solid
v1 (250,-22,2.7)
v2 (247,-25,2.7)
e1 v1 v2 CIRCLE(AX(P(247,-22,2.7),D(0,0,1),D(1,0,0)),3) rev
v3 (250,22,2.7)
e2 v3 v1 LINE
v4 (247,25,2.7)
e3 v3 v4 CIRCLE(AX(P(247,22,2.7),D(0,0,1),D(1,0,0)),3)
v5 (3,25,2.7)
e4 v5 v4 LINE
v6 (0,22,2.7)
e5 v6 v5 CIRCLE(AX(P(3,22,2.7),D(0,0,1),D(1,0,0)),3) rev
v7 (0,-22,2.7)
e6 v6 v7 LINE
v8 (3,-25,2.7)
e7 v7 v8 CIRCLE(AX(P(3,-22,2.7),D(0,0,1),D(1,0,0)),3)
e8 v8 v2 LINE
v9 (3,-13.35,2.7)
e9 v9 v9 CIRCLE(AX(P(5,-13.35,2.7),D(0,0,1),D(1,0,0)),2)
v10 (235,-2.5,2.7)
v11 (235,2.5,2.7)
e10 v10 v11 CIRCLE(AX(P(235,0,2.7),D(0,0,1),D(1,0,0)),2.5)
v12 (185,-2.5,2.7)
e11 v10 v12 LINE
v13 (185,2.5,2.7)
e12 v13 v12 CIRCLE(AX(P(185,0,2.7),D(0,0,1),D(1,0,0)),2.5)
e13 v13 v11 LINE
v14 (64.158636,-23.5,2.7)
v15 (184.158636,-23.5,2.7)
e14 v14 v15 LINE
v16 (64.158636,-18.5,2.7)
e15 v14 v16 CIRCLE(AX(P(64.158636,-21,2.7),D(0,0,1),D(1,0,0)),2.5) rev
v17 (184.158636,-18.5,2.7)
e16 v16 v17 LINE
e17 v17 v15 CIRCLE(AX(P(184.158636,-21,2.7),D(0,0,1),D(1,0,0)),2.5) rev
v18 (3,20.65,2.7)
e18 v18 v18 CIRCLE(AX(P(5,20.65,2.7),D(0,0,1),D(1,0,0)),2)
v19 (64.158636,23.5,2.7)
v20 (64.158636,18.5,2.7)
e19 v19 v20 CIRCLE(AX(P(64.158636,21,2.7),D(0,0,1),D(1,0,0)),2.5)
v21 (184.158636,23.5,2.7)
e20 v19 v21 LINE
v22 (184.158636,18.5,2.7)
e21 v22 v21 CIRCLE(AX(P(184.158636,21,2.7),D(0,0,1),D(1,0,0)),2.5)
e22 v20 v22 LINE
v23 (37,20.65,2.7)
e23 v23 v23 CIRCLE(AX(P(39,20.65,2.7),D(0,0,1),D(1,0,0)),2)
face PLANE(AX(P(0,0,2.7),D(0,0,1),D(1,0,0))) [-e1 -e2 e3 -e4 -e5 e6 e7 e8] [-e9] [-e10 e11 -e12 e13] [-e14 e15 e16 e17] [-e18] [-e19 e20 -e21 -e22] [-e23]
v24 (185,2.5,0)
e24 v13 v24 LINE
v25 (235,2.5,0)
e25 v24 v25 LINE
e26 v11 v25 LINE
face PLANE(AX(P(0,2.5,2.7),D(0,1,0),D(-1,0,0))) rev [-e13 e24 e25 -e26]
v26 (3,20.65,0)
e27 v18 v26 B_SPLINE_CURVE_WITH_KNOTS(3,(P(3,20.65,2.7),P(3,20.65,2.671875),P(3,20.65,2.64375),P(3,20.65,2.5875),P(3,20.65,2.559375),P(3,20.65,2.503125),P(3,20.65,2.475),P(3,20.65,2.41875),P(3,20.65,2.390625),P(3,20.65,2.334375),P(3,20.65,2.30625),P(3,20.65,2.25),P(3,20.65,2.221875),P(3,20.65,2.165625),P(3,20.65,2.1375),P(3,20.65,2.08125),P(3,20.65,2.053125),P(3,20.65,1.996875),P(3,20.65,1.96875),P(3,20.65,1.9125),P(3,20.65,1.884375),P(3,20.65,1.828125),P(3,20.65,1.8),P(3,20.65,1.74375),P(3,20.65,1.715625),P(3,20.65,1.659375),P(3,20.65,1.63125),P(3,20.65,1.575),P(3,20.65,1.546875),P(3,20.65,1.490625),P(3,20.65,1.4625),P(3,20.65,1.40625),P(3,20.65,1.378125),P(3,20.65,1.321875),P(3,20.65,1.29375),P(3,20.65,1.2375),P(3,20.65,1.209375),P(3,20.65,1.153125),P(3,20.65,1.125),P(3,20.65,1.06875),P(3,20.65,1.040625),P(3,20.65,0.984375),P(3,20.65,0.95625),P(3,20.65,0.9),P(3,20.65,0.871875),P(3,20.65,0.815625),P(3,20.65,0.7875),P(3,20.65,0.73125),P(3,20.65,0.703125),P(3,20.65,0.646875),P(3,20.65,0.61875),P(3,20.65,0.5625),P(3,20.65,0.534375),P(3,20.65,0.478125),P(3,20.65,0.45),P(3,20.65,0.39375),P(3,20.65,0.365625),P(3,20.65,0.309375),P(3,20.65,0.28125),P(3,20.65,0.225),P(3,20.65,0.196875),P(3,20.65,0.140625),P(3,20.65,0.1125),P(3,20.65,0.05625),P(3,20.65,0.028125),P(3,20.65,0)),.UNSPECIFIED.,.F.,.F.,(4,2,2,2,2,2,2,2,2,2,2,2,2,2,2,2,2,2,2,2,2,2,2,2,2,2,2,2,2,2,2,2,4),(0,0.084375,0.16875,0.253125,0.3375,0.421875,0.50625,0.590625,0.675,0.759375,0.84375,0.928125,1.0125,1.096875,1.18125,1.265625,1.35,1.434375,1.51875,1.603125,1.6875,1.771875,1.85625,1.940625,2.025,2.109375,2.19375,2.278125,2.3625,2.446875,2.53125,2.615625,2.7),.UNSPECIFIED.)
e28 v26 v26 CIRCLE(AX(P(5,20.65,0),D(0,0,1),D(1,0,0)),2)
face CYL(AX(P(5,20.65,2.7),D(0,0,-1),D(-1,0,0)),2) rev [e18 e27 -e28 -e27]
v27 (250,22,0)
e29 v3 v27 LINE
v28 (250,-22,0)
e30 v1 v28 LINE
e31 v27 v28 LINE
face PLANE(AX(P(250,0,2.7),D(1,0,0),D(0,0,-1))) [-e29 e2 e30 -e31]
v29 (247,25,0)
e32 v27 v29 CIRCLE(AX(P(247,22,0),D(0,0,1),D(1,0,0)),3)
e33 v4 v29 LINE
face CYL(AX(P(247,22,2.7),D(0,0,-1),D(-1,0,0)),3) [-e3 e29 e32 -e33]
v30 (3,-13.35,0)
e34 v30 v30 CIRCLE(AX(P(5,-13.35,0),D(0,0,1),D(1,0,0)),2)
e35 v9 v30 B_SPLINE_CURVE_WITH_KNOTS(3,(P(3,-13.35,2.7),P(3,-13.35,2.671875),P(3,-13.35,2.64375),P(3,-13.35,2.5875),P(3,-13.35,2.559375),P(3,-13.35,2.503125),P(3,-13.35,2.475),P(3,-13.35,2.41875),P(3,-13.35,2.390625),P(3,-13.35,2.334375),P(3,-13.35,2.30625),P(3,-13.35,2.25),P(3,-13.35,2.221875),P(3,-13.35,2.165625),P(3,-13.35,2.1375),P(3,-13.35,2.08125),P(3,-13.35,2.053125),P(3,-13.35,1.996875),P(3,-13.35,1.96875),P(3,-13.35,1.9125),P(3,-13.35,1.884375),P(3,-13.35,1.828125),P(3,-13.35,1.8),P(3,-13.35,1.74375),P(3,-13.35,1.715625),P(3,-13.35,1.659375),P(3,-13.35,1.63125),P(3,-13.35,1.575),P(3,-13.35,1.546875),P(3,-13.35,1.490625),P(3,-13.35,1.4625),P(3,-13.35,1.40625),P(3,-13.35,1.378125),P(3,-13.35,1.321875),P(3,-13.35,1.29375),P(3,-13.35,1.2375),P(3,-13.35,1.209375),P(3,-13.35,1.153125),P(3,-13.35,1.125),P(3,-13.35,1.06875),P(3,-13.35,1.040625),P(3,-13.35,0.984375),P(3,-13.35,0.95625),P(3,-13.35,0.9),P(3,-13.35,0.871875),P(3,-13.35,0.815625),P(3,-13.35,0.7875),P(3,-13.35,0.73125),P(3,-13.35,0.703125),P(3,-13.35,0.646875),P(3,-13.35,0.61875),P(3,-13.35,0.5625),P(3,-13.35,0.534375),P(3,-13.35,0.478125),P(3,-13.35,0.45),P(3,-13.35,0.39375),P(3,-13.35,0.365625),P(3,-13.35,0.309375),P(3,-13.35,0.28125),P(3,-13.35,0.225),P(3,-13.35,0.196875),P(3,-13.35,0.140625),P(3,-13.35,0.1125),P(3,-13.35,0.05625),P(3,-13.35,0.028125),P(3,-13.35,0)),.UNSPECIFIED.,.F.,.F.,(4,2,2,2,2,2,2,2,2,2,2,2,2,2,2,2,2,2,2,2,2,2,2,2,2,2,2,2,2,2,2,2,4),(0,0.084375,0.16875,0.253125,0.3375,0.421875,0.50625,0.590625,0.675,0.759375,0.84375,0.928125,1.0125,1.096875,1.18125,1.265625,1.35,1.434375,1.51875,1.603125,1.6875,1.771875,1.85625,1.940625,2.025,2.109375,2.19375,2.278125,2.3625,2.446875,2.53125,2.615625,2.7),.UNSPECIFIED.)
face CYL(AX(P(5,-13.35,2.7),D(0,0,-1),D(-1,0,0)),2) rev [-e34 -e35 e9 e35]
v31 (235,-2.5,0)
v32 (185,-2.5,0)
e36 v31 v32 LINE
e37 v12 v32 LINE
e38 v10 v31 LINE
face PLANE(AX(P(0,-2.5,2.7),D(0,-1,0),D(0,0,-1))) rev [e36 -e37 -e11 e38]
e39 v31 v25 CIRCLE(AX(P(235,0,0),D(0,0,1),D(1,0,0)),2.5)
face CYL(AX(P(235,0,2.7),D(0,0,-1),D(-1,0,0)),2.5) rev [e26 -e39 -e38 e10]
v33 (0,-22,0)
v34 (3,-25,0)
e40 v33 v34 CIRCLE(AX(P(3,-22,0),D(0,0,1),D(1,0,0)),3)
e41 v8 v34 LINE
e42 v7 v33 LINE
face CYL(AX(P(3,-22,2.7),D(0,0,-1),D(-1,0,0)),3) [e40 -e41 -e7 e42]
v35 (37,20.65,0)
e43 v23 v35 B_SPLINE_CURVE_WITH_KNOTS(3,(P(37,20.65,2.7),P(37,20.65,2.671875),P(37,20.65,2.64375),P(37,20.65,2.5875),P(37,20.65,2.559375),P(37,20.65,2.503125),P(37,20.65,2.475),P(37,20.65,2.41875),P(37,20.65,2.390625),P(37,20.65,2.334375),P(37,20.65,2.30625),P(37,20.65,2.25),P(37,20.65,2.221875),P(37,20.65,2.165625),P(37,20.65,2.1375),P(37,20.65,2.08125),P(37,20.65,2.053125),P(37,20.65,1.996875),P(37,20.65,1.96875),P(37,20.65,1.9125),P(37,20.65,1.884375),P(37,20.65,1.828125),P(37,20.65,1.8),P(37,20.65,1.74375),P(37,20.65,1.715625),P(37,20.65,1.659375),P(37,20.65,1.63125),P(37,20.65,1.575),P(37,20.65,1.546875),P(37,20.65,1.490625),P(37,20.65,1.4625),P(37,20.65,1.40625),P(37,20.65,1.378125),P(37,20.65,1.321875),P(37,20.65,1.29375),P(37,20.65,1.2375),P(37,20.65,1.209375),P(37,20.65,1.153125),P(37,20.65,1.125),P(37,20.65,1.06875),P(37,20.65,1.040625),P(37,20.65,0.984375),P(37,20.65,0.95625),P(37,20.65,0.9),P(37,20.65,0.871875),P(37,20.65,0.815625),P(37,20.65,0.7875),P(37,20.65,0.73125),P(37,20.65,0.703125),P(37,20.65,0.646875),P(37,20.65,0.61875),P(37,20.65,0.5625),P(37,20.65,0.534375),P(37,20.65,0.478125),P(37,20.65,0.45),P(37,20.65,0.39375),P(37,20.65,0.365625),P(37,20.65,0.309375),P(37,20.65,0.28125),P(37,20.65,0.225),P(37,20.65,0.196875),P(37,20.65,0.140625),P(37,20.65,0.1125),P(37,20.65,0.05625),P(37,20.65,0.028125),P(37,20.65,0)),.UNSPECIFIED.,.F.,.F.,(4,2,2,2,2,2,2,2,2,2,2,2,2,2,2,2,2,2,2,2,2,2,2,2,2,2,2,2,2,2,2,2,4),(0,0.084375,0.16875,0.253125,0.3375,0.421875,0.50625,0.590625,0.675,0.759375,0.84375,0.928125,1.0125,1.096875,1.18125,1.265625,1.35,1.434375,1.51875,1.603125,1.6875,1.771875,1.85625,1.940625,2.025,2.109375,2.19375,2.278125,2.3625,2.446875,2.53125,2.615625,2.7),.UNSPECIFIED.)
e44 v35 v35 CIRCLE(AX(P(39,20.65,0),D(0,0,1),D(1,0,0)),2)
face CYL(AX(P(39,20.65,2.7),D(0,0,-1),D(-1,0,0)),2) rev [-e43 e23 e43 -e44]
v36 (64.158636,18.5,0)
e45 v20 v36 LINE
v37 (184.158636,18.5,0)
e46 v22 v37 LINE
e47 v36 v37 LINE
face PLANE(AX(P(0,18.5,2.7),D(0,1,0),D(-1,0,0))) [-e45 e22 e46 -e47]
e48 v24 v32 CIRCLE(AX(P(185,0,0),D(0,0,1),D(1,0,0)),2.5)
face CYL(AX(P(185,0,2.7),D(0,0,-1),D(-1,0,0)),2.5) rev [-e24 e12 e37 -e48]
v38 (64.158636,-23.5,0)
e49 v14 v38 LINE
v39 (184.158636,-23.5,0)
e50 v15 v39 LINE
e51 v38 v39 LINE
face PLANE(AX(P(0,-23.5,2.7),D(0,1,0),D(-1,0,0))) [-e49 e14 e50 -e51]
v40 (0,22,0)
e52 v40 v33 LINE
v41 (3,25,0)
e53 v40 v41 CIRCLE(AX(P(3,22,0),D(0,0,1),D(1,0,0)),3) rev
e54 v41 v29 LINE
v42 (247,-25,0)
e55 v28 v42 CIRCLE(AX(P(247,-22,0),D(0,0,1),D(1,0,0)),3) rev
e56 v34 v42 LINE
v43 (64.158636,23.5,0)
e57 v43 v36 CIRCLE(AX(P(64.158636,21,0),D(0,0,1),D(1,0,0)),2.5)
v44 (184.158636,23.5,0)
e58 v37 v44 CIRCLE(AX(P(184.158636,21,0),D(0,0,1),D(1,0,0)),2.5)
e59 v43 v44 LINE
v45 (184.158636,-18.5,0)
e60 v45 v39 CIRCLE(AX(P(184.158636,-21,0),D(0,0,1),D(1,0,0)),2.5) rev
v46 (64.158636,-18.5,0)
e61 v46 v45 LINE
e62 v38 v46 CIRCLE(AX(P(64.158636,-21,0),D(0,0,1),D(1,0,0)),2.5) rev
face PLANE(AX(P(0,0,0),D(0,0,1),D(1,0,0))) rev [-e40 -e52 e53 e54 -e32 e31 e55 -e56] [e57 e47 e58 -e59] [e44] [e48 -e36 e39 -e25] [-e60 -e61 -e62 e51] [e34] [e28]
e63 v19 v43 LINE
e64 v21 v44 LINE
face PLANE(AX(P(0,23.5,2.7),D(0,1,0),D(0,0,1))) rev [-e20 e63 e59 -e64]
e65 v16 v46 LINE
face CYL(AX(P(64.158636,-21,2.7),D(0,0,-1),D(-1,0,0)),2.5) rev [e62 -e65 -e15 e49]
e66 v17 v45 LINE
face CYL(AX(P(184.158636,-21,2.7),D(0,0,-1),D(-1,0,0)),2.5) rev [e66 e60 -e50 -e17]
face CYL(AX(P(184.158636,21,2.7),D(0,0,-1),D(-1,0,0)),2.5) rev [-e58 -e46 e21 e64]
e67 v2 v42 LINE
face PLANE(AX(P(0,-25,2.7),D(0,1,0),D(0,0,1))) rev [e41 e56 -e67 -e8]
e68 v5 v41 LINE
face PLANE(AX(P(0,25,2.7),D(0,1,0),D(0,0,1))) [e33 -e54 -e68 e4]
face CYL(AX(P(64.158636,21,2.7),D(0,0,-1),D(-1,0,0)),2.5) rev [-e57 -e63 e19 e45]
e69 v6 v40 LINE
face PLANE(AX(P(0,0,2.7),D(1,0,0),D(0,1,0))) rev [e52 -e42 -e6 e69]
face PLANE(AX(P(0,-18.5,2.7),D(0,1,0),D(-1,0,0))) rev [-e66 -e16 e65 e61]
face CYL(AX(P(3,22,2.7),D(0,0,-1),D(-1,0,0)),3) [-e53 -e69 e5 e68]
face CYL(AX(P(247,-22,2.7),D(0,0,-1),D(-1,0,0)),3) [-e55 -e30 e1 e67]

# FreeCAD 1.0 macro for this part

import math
import FreeCAD as App
import Part
import Sketcher
from FreeCAD import Vector

doc = App.newDocument("Part")
params = doc.addObject("Spreadsheet::Sheet", "Params")
for row, (alias, value) in enumerate([
    ("sketch1_diameter", "4 mm"),
    ("sketch1_radius", "3 mm"),
    ("sketch1_radius2", "2.5 mm"),
    ("sketch1_width", "244 mm"),
    ("sketch1_width2", "120 mm"),
    ("pad1_length", "2.7 mm"),
], start=1):
    params.set(f"A{row}", alias)
    params.set(f"B{row}", "=" + value)
    params.setAlias(f"B{row}", alias)

body = doc.addObject("PartDesign::Body", "Body")

# Sketch on XY plane
sketch1 = body.newObject("Sketcher::SketchObject", "Sketch")
sketch1.AttachmentSupport = (doc.getObject("XY_Plane"), [""])
sketch1.MapMode = "FlatFace"
sketch1.addGeometry([
    Part.ArcOfCircle(Part.Circle(Vector(3, 22, 0), Vector(0, 0, 1), 3), math.radians(90), math.radians(180)),  # 0
    Part.LineSegment(Vector(0, 22, 0), Vector(0, -22, 0)),  # 1
    Part.ArcOfCircle(Part.Circle(Vector(3, -22, 0), Vector(0, 0, 1), 3), math.radians(180), math.radians(270)),  # 2
    Part.LineSegment(Vector(3, -25, 0), Vector(247, -25, 0)),  # 3
    Part.ArcOfCircle(Part.Circle(Vector(247, -22, 0), Vector(0, 0, 1), 3), math.radians(-90), math.radians(0)),  # 4
    Part.LineSegment(Vector(250, -22, 0), Vector(250, 22, 0)),  # 5
    Part.ArcOfCircle(Part.Circle(Vector(247, 22, 0), Vector(0, 0, 1), 3), math.radians(0), math.radians(90)),  # 6
    Part.LineSegment(Vector(247, 25, 0), Vector(3, 25, 0)),  # 7
    Part.Circle(Vector(5, -13.35, 0), Vector(0, 0, 1), 2),  # 8
    Part.ArcOfCircle(Part.Circle(Vector(184.158636, -21, 0), Vector(0, 0, 1), 2.5), math.radians(-90), math.radians(0)),  # 9
    Part.LineSegment(Vector(184.158636, -23.5, 0), Vector(64.158636, -23.5, 0)),  # 10
    Part.ArcOfCircle(Part.Circle(Vector(64.158636, -21, 0), Vector(0, 0, 1), 2.5), math.radians(90), math.radians(270)),  # 11
    Part.LineSegment(Vector(64.158636, -18.5, 0), Vector(184.158636, -18.5, 0)),  # 12
    Part.ArcOfCircle(Part.Circle(Vector(184.158636, -21, 0), Vector(0, 0, 1), 2.5), math.radians(0), math.radians(90)),  # 13
    Part.LineSegment(Vector(235, -2.5, 0), Vector(185, -2.5, 0)),  # 14
    Part.ArcOfCircle(Part.Circle(Vector(185, 0, 0), Vector(0, 0, 1), 2.5), math.radians(90), math.radians(270)),  # 15
    Part.LineSegment(Vector(185, 2.5, 0), Vector(235, 2.5, 0)),  # 16
    Part.ArcOfCircle(Part.Circle(Vector(235, 0, 0), Vector(0, 0, 1), 2.5), math.radians(0), math.radians(90)),  # 17
    Part.ArcOfCircle(Part.Circle(Vector(235, 0, 0), Vector(0, 0, 1), 2.5), math.radians(-90), math.radians(0)),  # 18
    Part.Circle(Vector(5, 20.65, 0), Vector(0, 0, 1), 2),  # 19
    Part.Circle(Vector(39, 20.65, 0), Vector(0, 0, 1), 2),  # 20
    Part.ArcOfCircle(Part.Circle(Vector(184.158636, 21, 0), Vector(0, 0, 1), 2.5), math.radians(-90), math.radians(0)),  # 21
    Part.LineSegment(Vector(184.158636, 18.5, 0), Vector(64.158636, 18.5, 0)),  # 22
    Part.ArcOfCircle(Part.Circle(Vector(64.158636, 21, 0), Vector(0, 0, 1), 2.5), math.radians(90), math.radians(270)),  # 23
    Part.LineSegment(Vector(64.158636, 23.5, 0), Vector(184.158636, 23.5, 0)),  # 24
    Part.ArcOfCircle(Part.Circle(Vector(184.158636, 21, 0), Vector(0, 0, 1), 2.5), math.radians(0), math.radians(90)),  # 25
], False)
sketch1.addConstraint([
    Sketcher.Constraint("Tangent", 0, 2, 1, 1),
    Sketcher.Constraint("Tangent", 1, 2, 2, 1),
    Sketcher.Constraint("Tangent", 2, 2, 3, 1),
    Sketcher.Constraint("Tangent", 3, 2, 4, 1),
    Sketcher.Constraint("Tangent", 4, 2, 5, 1),
    Sketcher.Constraint("Tangent", 5, 2, 6, 1),
    Sketcher.Constraint("Tangent", 6, 2, 7, 1),
    Sketcher.Constraint("Tangent", 7, 2, 0, 1),
    Sketcher.Constraint("Tangent", 9, 1, 10, 1),
    Sketcher.Constraint("Tangent", 10, 2, 11, 2),
    Sketcher.Constraint("Tangent", 11, 1, 12, 1),
    Sketcher.Constraint("Tangent", 12, 2, 13, 2),
    Sketcher.Constraint("Tangent", 13, 1, 9, 2),
    Sketcher.Constraint("Tangent", 14, 2, 15, 2),
    Sketcher.Constraint("Tangent", 15, 1, 16, 1),
    Sketcher.Constraint("Tangent", 16, 2, 17, 2),
    Sketcher.Constraint("Tangent", 17, 1, 18, 2),
    Sketcher.Constraint("Tangent", 18, 1, 14, 1),
    Sketcher.Constraint("Tangent", 21, 1, 22, 1),
    Sketcher.Constraint("Tangent", 22, 2, 23, 2),
    Sketcher.Constraint("Tangent", 23, 1, 24, 1),
    Sketcher.Constraint("Tangent", 24, 2, 25, 2),
    Sketcher.Constraint("Tangent", 25, 1, 21, 2),
    Sketcher.Constraint("Vertical", 1),
    Sketcher.Constraint("Horizontal", 3),
    Sketcher.Constraint("Vertical", 5),
    Sketcher.Constraint("Horizontal", 7),
    Sketcher.Constraint("Horizontal", 10),
    Sketcher.Constraint("Horizontal", 12),
    Sketcher.Constraint("Horizontal", 14),
    Sketcher.Constraint("Horizontal", 16),
    Sketcher.Constraint("Horizontal", 22),
    Sketcher.Constraint("Horizontal", 24),
    Sketcher.Constraint("Equal", 0, 2),
    Sketcher.Constraint("Equal", 2, 4),
    Sketcher.Constraint("Equal", 4, 6),
    Sketcher.Constraint("Equal", 9, 11),
    Sketcher.Constraint("Equal", 13, 15),
    Sketcher.Constraint("Equal", 15, 17),
    Sketcher.Constraint("Equal", 8, 19),
    Sketcher.Constraint("Equal", 19, 20),
    Sketcher.Constraint("Equal", 18, 21),
    Sketcher.Constraint("Equal", 21, 23),
    Sketcher.Constraint("Symmetric", 0, 2, 1, 2, -1, 1),
    Sketcher.Constraint("Symmetric", 9, 3, 21, 3, -1),
    Sketcher.Constraint("PointOnObject", 15, 3, -1),
    Sketcher.Constraint("PointOnObject", 17, 1, -1),
    Sketcher.Constraint("Horizontal", 19, 3, 20, 3),
    Sketcher.Constraint("Horizontal", 11, 3, 13, 1),
    Sketcher.Constraint("Horizontal", 23, 3, 25, 1),
    Sketcher.Constraint("Vertical", 8, 3, 19, 3),
    Sketcher.Constraint("Vertical", 11, 3, 23, 3),
    Sketcher.Constraint("Diameter", 8, 4.0),
    Sketcher.Constraint("Radius", 0, 3.0),
    Sketcher.Constraint("Radius", 9, 2.5),
    Sketcher.Constraint("DistanceX", 3, 1, 3, 2, 244.0),
    Sketcher.Constraint("DistanceX", 10, 2, 10, 1, 120.0),
    Sketcher.Constraint("DistanceX", 14, 2, 14, 1, 50.0),
    Sketcher.Constraint("DistanceY", 1, 2, 1, 1, 44.0),
    Sketcher.Constraint("DistanceX", -1, 1, 8, 3, 5.0),
    Sketcher.Constraint("DistanceY", 9, 3, -1, 1, 21.0),
    Sketcher.Constraint("DistanceX", -1, 1, 15, 3, 185.0),
    Sketcher.Constraint("DistanceX", -1, 1, 20, 3, 39.0),
    Sketcher.Constraint("DistanceY", 8, 3, 19, 3, 34.0),
    Sketcher.Constraint("DistanceY", 8, 3, -1, 1, 13.35),
    Sketcher.Constraint("DistanceX", -1, 1, 9, 3, 184.158636),
])
sketch1.setExpression("Constraints[52]", "Params.sketch1_diameter")
sketch1.setExpression("Constraints[53]", "Params.sketch1_radius")
sketch1.setExpression("Constraints[54]", "Params.sketch1_radius2")
sketch1.setExpression("Constraints[55]", "Params.sketch1_width")
sketch1.setExpression("Constraints[56]", "Params.sketch1_width2")
pad1 = body.newObject("PartDesign::Pad", "Pad")
pad1.Profile = sketch1
pad1.setExpression("Length", "Params.pad1_length")

doc.recompute()
